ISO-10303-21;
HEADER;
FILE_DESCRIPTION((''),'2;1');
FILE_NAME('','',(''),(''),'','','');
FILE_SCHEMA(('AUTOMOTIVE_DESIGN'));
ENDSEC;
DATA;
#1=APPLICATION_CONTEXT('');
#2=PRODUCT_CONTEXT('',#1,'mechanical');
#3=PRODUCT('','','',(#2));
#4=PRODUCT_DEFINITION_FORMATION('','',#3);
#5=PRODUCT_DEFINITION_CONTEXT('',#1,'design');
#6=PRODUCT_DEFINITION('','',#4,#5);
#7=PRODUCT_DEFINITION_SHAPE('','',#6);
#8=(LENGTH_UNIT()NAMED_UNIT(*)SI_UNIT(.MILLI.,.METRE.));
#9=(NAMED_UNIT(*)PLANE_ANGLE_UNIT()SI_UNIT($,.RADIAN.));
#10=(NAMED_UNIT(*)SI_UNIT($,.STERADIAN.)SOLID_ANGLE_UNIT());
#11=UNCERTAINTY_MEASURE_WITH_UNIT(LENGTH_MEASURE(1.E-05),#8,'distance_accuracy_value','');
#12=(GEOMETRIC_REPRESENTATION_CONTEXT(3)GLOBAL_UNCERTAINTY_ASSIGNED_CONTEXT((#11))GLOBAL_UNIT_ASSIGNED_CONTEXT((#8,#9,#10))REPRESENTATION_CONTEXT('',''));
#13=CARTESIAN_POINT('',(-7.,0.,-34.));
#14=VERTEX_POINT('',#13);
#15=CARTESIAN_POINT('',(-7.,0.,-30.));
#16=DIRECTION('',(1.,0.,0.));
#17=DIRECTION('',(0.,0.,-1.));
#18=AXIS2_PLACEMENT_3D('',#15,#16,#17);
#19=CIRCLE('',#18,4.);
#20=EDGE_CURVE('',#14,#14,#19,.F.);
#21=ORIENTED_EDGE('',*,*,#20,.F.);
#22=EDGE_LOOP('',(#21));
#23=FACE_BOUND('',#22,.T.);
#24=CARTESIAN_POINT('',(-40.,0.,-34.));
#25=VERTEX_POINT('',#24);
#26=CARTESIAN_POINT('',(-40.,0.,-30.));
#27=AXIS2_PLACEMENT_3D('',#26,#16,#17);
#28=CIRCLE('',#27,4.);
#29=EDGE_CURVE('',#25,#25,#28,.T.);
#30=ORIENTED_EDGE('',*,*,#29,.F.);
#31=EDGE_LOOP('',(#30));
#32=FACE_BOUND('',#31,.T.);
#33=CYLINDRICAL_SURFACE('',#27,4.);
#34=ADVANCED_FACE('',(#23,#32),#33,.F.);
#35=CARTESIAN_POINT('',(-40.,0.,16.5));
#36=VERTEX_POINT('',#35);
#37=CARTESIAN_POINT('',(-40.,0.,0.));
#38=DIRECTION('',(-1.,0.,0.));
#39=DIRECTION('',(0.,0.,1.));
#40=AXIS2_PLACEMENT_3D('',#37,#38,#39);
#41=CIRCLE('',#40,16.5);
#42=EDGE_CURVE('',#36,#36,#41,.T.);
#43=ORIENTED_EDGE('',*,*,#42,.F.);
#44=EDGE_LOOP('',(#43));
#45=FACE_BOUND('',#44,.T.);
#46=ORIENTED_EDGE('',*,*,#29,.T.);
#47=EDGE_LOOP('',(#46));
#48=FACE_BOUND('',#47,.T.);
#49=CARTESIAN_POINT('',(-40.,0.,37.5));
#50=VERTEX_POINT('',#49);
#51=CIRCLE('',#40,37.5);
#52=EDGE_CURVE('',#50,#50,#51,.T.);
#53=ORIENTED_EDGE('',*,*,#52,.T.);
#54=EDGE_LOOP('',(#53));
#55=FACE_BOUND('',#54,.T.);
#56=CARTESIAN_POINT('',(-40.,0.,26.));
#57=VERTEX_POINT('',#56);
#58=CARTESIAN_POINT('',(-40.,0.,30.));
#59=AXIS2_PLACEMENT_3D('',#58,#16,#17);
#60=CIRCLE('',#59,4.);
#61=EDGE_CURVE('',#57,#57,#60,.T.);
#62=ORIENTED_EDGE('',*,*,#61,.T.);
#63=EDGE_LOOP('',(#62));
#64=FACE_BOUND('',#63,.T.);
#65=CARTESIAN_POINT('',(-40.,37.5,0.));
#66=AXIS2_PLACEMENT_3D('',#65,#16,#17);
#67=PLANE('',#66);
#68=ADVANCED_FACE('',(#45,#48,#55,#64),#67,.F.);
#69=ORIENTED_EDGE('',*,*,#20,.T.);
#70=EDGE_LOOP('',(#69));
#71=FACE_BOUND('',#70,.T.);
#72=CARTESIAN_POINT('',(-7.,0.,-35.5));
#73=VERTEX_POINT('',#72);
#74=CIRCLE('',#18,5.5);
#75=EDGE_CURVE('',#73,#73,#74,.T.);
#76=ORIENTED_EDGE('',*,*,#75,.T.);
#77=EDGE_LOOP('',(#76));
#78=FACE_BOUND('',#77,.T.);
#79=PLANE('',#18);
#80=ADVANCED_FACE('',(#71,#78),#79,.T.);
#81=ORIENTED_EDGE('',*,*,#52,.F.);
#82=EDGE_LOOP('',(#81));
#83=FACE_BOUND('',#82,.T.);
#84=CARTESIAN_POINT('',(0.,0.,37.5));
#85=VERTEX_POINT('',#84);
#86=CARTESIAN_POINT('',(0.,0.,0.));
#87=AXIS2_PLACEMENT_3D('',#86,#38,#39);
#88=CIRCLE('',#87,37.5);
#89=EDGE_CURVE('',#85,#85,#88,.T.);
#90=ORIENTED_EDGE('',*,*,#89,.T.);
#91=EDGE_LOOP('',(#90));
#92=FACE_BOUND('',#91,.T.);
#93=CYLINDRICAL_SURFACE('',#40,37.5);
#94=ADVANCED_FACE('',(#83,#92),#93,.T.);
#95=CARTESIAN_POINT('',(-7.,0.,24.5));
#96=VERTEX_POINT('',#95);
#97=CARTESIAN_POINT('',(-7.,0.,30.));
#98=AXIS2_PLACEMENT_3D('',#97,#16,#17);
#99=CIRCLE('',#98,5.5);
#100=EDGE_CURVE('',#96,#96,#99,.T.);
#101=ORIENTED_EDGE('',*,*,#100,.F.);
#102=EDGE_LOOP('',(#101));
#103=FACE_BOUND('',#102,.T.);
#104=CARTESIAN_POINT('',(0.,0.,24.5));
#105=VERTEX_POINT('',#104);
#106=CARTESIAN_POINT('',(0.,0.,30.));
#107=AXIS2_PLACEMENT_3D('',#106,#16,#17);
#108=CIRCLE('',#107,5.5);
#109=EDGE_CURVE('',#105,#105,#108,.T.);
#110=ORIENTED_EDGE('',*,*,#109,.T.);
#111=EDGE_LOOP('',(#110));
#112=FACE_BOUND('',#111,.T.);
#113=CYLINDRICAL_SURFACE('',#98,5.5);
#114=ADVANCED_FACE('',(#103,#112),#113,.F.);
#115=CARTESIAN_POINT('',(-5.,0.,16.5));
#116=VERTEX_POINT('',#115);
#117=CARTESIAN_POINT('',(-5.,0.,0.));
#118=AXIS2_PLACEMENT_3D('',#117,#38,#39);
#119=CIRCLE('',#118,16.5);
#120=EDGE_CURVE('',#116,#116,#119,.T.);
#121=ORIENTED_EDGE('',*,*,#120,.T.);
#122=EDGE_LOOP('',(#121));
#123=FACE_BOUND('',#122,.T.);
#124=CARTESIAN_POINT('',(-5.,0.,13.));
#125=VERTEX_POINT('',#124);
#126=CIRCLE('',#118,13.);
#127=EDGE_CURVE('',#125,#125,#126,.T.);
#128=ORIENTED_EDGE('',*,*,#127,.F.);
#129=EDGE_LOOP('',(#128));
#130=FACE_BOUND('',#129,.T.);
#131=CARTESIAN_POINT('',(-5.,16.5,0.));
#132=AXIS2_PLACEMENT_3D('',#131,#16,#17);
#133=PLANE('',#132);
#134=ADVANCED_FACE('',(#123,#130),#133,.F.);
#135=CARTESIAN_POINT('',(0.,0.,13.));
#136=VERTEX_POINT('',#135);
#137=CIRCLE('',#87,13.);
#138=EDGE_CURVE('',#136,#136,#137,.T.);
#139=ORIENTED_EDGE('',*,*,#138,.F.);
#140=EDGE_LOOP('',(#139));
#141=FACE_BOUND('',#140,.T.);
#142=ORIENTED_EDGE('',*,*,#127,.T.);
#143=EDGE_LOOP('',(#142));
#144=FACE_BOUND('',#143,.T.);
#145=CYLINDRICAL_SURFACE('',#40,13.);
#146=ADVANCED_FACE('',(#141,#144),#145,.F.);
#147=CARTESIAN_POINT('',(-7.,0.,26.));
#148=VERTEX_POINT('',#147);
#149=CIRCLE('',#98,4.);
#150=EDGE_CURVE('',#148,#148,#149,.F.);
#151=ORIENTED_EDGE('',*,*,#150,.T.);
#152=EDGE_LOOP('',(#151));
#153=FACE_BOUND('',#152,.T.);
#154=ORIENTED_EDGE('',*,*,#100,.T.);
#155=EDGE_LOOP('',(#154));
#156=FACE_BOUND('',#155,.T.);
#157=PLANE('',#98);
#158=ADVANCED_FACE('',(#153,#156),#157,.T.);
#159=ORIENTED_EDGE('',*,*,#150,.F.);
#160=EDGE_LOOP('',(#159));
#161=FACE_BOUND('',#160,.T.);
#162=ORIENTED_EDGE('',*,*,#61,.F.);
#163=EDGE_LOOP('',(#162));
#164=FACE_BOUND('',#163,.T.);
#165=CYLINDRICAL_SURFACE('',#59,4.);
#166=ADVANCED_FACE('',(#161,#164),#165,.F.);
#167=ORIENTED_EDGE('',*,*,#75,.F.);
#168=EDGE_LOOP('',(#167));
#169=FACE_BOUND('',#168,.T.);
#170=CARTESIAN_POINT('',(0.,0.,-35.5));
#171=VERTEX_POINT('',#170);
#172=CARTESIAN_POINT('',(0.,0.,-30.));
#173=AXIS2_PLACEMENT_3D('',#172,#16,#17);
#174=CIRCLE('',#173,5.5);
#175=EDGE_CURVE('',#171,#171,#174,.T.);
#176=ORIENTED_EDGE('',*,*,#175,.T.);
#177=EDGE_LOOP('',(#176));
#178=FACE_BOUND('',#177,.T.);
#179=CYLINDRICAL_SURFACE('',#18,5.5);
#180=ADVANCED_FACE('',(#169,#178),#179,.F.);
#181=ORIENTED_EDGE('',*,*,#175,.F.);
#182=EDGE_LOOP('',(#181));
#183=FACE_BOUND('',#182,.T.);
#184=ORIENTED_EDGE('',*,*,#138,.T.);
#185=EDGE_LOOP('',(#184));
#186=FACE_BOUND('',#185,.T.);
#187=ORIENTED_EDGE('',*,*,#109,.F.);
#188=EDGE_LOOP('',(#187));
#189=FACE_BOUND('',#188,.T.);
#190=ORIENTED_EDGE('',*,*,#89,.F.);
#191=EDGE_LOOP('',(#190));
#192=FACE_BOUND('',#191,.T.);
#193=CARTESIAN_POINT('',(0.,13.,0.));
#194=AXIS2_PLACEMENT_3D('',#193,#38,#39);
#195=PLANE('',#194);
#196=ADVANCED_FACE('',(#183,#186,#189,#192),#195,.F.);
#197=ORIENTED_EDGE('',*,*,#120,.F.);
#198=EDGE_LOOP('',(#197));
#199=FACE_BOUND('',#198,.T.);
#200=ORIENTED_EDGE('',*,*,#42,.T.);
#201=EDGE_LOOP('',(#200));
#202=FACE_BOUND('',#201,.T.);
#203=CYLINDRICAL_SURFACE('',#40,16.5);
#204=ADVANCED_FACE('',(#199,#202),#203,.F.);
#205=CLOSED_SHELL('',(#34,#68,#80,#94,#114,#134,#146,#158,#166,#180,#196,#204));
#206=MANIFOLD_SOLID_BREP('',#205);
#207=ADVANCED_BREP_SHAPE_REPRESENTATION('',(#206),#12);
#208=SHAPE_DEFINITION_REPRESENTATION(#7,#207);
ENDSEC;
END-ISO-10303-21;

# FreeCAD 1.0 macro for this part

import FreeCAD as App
import Part
import Sketcher

V = App.Vector

doc = App.newDocument("Part")
params = doc.addObject("Spreadsheet::Sheet", "Params")
for row, (alias, value) in enumerate([
    ("sketch1_width", "35 mm"),
    ("sketch1_width2", "5 mm"),
    ("sketch1_height", "21 mm"),
    ("sketch1_height2", "3.5 mm"),
    ("revolution_angle", "360 deg"),
    ("sketch2_diameter", "8 mm"),
    ("sketch3_diameter", "11 mm"),
    ("pocket2_length", "7 mm"),
], start=1):
    params.set(f"A{row}", alias)
    params.set(f"B{row}", "=" + value)
    params.setAlias(f"B{row}", alias)

body = doc.addObject("PartDesign::Body", "Body")

# Sketch on XY plane
sketch1 = body.newObject("Sketcher::SketchObject", "Sketch")
sketch1.AttachmentSupport = (doc.getObject("XY_Plane"), [""])
sketch1.MapMode = "FlatFace"
sketch1.addGeometry(Part.LineSegment(V(-40, 16.5, 0), V(-5, 16.5, 0)), False)
sketch1.addGeometry(Part.LineSegment(V(-5, 16.5, 0), V(-5, 13, 0)), False)
sketch1.addGeometry(Part.LineSegment(V(-5, 13, 0), V(0, 13, 0)), False)
sketch1.addGeometry(Part.LineSegment(V(0, 13, 0), V(0, 37.5, 0)), False)
sketch1.addGeometry(Part.LineSegment(V(0, 37.5, 0), V(-40, 37.5, 0)), False)
sketch1.addGeometry(Part.LineSegment(V(-40, 37.5, 0), V(-40, 16.5, 0)), False)
sketch1.addConstraint(Sketcher.Constraint("Coincident", 0, 2, 1, 1))
sketch1.addConstraint(Sketcher.Constraint("Coincident", 1, 2, 2, 1))
sketch1.addConstraint(Sketcher.Constraint("Coincident", 2, 2, 3, 1))
sketch1.addConstraint(Sketcher.Constraint("Coincident", 3, 2, 4, 1))
sketch1.addConstraint(Sketcher.Constraint("Coincident", 4, 2, 5, 1))
sketch1.addConstraint(Sketcher.Constraint("Coincident", 5, 2, 0, 1))
sketch1.addConstraint(Sketcher.Constraint("Horizontal", 0))
sketch1.addConstraint(Sketcher.Constraint("Vertical", 1))
sketch1.addConstraint(Sketcher.Constraint("Horizontal", 2))
sketch1.addConstraint(Sketcher.Constraint("Vertical", 3))
sketch1.addConstraint(Sketcher.Constraint("Horizontal", 4))
sketch1.addConstraint(Sketcher.Constraint("Vertical", 5))
sketch1.addConstraint(Sketcher.Constraint("PointOnObject", 2, 2, -2))
sketch1.addConstraint(Sketcher.Constraint("DistanceX", 0, 1, 0, 2, 35.0))
sketch1.addConstraint(Sketcher.Constraint("DistanceX", 2, 1, 2, 2, 5.0))
sketch1.addConstraint(Sketcher.Constraint("DistanceY", 5, 2, 5, 1, 21.0))
sketch1.addConstraint(Sketcher.Constraint("DistanceY", 1, 2, 1, 1, 3.5))
sketch1.addConstraint(Sketcher.Constraint("DistanceY", -1, 1, 1, 2, 13.0))
sketch1.setExpression("Constraints[13]", "Params.sketch1_width")
sketch1.setExpression("Constraints[14]", "Params.sketch1_width2")
sketch1.setExpression("Constraints[15]", "Params.sketch1_height")
sketch1.setExpression("Constraints[16]", "Params.sketch1_height2")
revolution = body.newObject("PartDesign::Revolution", "Revolution")
revolution.Profile = sketch1
revolution.ReferenceAxis = (sketch1, ["H_Axis"])
revolution.setExpression("Angle", "Params.revolution_angle")

# Sketch on YZ plane
sketch2 = body.newObject("Sketcher::SketchObject", "Sketch001")
sketch2.AttachmentSupport = (doc.getObject("YZ_Plane"), [""])
sketch2.MapMode = "FlatFace"
sketch2.addGeometry(Part.Circle(V(0, -30, 0), V(0, 0, 1), 4), False)
sketch2.addGeometry(Part.Circle(V(0, 30, 0), V(0, 0, 1), 4), False)
sketch2.addConstraint(Sketcher.Constraint("Equal", 0, 1))
sketch2.addConstraint(Sketcher.Constraint("Symmetric", 0, 3, 1, 3, -1, 1))
sketch2.addConstraint(Sketcher.Constraint("PointOnObject", 0, 3, -2))
sketch2.addConstraint(Sketcher.Constraint("Diameter", 0, 8.0))
sketch2.addConstraint(Sketcher.Constraint("DistanceY", 0, 3, -1, 1, 30.0))
sketch2.setExpression("Constraints[3]", "Params.sketch2_diameter")
pocket1 = body.newObject("PartDesign::Pocket", "Pocket")
pocket1.Profile = sketch2
pocket1.Type = "ThroughAll"
pocket1.Midplane = True

# Sketch on YZ plane
sketch3 = body.newObject("Sketcher::SketchObject", "Sketch002")
sketch3.AttachmentSupport = (doc.getObject("YZ_Plane"), [""])
sketch3.MapMode = "FlatFace"
sketch3.addGeometry(Part.Circle(V(0, -30, 0), V(0, 0, 1), 5.5), False)
sketch3.addGeometry(Part.Circle(V(0, 30, 0), V(0, 0, 1), 5.5), False)
sketch3.addConstraint(Sketcher.Constraint("Equal", 0, 1))
sketch3.addConstraint(Sketcher.Constraint("Symmetric", 0, 3, 1, 3, -1, 1))
sketch3.addConstraint(Sketcher.Constraint("PointOnObject", 0, 3, -2))
sketch3.addConstraint(Sketcher.Constraint("Diameter", 0, 11.0))
sketch3.addConstraint(Sketcher.Constraint("DistanceY", 0, 3, -1, 1, 30.0))
sketch3.setExpression("Constraints[3]", "Params.sketch3_diameter")
pocket2 = body.newObject("PartDesign::Pocket", "Pocket001")
pocket2.Profile = sketch3
pocket2.setExpression("Length", "Params.pocket2_length")

doc.recompute()
